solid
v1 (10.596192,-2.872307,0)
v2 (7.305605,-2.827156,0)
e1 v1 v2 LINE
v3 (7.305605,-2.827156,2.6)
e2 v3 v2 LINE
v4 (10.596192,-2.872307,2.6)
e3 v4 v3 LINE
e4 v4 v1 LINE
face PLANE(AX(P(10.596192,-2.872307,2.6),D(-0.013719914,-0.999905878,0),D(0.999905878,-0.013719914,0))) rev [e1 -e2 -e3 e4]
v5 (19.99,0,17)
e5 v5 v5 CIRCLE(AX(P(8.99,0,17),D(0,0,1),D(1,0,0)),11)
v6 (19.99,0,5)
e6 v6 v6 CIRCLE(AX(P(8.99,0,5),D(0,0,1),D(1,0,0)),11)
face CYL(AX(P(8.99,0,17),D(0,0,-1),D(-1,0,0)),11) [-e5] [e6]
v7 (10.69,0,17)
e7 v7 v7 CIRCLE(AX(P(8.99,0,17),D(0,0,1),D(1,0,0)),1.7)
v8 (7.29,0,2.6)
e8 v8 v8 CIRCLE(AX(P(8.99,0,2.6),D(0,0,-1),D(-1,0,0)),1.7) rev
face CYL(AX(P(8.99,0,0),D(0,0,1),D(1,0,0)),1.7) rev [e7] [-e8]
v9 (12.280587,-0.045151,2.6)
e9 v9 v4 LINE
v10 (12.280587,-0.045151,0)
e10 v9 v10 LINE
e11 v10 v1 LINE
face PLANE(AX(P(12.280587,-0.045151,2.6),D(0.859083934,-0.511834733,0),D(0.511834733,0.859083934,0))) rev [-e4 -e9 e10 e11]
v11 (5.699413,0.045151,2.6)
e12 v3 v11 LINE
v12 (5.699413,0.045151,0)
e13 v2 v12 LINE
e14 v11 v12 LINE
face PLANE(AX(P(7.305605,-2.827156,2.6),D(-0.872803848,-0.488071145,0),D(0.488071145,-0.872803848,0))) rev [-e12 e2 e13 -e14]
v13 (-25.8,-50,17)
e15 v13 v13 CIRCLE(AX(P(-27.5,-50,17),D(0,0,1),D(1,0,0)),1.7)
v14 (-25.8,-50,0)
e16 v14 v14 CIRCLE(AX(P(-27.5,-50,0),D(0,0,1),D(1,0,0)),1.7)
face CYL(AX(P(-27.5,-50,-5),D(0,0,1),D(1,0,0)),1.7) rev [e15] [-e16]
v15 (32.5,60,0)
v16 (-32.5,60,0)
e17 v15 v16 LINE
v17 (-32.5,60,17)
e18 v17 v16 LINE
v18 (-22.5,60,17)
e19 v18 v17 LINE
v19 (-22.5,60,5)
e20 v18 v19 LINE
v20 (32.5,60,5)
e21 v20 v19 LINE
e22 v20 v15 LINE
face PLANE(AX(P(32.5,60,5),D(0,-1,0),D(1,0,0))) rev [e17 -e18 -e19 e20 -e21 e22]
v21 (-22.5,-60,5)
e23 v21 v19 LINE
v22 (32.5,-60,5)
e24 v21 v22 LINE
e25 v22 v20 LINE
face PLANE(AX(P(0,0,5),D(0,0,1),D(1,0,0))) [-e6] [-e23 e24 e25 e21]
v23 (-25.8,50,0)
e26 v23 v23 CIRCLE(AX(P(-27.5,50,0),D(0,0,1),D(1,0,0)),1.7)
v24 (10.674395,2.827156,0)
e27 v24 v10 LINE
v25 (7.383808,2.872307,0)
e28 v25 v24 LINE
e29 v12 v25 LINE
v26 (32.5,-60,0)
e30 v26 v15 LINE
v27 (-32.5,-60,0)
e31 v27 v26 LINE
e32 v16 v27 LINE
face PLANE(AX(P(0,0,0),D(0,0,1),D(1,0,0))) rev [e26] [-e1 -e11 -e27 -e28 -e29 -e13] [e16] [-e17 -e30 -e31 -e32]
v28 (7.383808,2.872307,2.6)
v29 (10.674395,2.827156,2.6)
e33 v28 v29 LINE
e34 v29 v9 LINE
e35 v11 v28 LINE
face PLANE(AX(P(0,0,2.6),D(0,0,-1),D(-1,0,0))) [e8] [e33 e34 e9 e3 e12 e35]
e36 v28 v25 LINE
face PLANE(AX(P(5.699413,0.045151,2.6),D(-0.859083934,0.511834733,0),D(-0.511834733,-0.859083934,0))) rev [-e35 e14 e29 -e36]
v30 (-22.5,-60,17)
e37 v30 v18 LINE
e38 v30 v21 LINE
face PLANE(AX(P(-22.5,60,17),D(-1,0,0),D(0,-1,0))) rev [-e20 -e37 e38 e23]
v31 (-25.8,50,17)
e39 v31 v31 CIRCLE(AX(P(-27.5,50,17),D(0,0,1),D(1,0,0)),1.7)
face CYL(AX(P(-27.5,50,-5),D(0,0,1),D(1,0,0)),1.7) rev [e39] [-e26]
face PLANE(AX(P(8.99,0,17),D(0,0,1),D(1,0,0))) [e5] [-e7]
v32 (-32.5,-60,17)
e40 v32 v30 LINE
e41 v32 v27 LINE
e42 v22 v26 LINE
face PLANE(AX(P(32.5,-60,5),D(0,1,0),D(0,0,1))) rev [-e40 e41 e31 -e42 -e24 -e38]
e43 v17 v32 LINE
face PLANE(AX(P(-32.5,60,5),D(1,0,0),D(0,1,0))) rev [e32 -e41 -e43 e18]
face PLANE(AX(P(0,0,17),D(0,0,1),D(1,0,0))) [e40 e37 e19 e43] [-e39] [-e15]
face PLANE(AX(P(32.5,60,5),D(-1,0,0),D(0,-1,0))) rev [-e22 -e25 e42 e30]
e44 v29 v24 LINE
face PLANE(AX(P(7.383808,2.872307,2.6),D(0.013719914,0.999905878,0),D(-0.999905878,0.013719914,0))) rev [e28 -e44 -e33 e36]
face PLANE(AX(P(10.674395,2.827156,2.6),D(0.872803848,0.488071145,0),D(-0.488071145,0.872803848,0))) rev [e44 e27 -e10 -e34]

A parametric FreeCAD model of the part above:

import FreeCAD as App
import Part
import Sketcher
from FreeCAD import Vector
Q = App.Units.Quantity

doc = App.newDocument("Part")
body = doc.addObject("PartDesign::Body", "Body")

sketch1 = doc.addObject("Sketcher::SketchObject", "Sketch")
body.addObject(sketch1)
sketch1.AttachmentSupport = (doc.XY_Plane, [""])
sketch1.MapMode = "FlatFace"
sketch1.addGeometry(Part.LineSegment(Vector(-32, -60, 0), Vector(32, -60, 0)), False)
sketch1.addGeometry(Part.LineSegment(Vector(32, -60, 0), Vector(32, 60, 0)), False)
sketch1.addGeometry(Part.LineSegment(Vector(32, 60, 0), Vector(-32, 60, 0)), False)
sketch1.addGeometry(Part.LineSegment(Vector(-32, 60, 0), Vector(-32, -60, 0)), False)
sketch1.addConstraint(Sketcher.Constraint("Coincident", 0, 2, 1, 1))
sketch1.addConstraint(Sketcher.Constraint("Coincident", 1, 2, 2, 1))
sketch1.addConstraint(Sketcher.Constraint("Coincident", 2, 2, 3, 1))
sketch1.addConstraint(Sketcher.Constraint("Coincident", 3, 2, 0, 1))
sketch1.addConstraint(Sketcher.Constraint("Horizontal", 0))
sketch1.addConstraint(Sketcher.Constraint("Vertical", 1))
sketch1.addConstraint(Sketcher.Constraint("Horizontal", 2))
sketch1.addConstraint(Sketcher.Constraint("Vertical", 3))
sketch1.addConstraint(Sketcher.Constraint("Symmetric", 0, 2, 2, 2, -1, 1))
sketch1.addConstraint(Sketcher.Constraint("DistanceX", 0, 1, 0, 2, Q("65 mm")))
sketch1.addConstraint(Sketcher.Constraint("DistanceY", 1, 1, 1, 2, Q("120 mm")))
pad1 = doc.addObject("PartDesign::Pad", "Pad")
body.addObject(pad1)
pad1.Profile = sketch1
pad1.Length = 5

sketch2 = doc.addObject("Sketcher::SketchObject", "Sketch001")
body.addObject(sketch2)
sketch2.AttachmentSupport = (doc.XY_Plane, [""])
sketch2.MapMode = "FlatFace"
sketch2.AttachmentOffset = App.Placement(Vector(0, 0, 5), App.Rotation())
sketch2.addGeometry(Part.LineSegment(Vector(-32, 60, 0), Vector(-32, -60, 0)), False)
sketch2.addGeometry(Part.LineSegment(Vector(-32, -60, 0), Vector(-22, -60, 0)), False)
sketch2.addGeometry(Part.LineSegment(Vector(-22, -60, 0), Vector(-22, 60, 0)), False)
sketch2.addGeometry(Part.LineSegment(Vector(-22, 60, 0), Vector(-32, 60, 0)), False)
sketch2.addConstraint(Sketcher.Constraint("Coincident", 0, 2, 1, 1))
sketch2.addConstraint(Sketcher.Constraint("Coincident", 1, 2, 2, 1))
sketch2.addConstraint(Sketcher.Constraint("Coincident", 2, 2, 3, 1))
sketch2.addConstraint(Sketcher.Constraint("Coincident", 3, 2, 0, 1))
sketch2.addConstraint(Sketcher.Constraint("Vertical", 0))
sketch2.addConstraint(Sketcher.Constraint("Horizontal", 1))
sketch2.addConstraint(Sketcher.Constraint("Vertical", 2))
sketch2.addConstraint(Sketcher.Constraint("Horizontal", 3))
sketch2.addConstraint(Sketcher.Constraint("DistanceX", 1, 1, 1, 2, Q("10 mm")))
sketch2.addConstraint(Sketcher.Constraint("DistanceY", 0, 2, 0, 1, Q("120 mm")))
sketch2.addConstraint(Sketcher.Constraint("DistanceY", 0, 2, -1, 1, Q("60 mm")))
sketch2.addConstraint(Sketcher.Constraint("DistanceX", 0, 2, -1, 1, Q("32.5 mm")))
pad2 = doc.addObject("PartDesign::Pad", "Pad001")
body.addObject(pad2)
pad2.Profile = sketch2
pad2.Length = 12

sketch3 = doc.addObject("Sketcher::SketchObject", "Sketch002")
body.addObject(sketch3)
sketch3.AttachmentSupport = (doc.XY_Plane, [""])
sketch3.MapMode = "FlatFace"
sketch3.AttachmentOffset = App.Placement(Vector(0, 0, 5), App.Rotation())
sketch3.addGeometry(Part.Circle(Vector(9, 0, 0), Vector(0, 0, 1), 11), False)
sketch3.addConstraint(Sketcher.Constraint("PointOnObject", 0, 3, -1))
sketch3.addConstraint(Sketcher.Constraint("Diameter", 0, Q("22 mm")))
sketch3.addConstraint(Sketcher.Constraint("DistanceX", -1, 1, 0, 3, Q("8.99 mm")))
pad3 = doc.addObject("PartDesign::Pad", "Pad002")
body.addObject(pad3)
pad3.Profile = sketch3
pad3.Length = 12

sketch4 = doc.addObject("Sketcher::SketchObject", "Sketch003")
body.addObject(sketch4)
sketch4.AttachmentSupport = (doc.XY_Plane, [""])
sketch4.MapMode = "FlatFace"
sketch4.AttachmentOffset = App.Placement(Vector(0, 0, 17), App.Rotation())
sketch4.addGeometry(Part.Circle(Vector(-27.5, 50, 0), Vector(0, 0, 1), 1.7), False)
sketch4.addGeometry(Part.Circle(Vector(-27.5, -50, 0), Vector(0, 0, 1), 1.7), False)
sketch4.addConstraint(Sketcher.Constraint("Equal", 0, 1))
sketch4.addConstraint(Sketcher.Constraint("Symmetric", 0, 3, 1, 3, -1))
sketch4.addConstraint(Sketcher.Constraint("Diameter", 0, Q("3.4 mm")))
sketch4.addConstraint(Sketcher.Constraint("DistanceY", -1, 1, 0, 3, Q("50 mm")))
sketch4.addConstraint(Sketcher.Constraint("DistanceX", 0, 3, -1, 1, Q("27.5 mm")))
pocket1 = doc.addObject("PartDesign::Pocket", "Pocket")
body.addObject(pocket1)
pocket1.Profile = sketch4
pocket1.Length = 22

sketch5 = doc.addObject("Sketcher::SketchObject", "Sketch004")
body.addObject(sketch5)
sketch5.AttachmentSupport = (doc.XY_Plane, [""])
sketch5.MapMode = "FlatFace"
sketch5.AttachmentOffset = App.Placement(Vector(0, 0, 17), App.Rotation())
sketch5.addGeometry(Part.Circle(Vector(9, 0, 0), Vector(0, 0, 1), 1.7), False)
sketch5.addConstraint(Sketcher.Constraint("PointOnObject", 0, 3, -1))
sketch5.addConstraint(Sketcher.Constraint("Diameter", 0, Q("3.4 mm")))
sketch5.addConstraint(Sketcher.Constraint("DistanceX", -1, 1, 0, 3, Q("8.99 mm")))
pocket2 = doc.addObject("PartDesign::Pocket", "Pocket001")
body.addObject(pocket2)
pocket2.Profile = sketch5
pocket2.Length = 17

sketch6 = doc.addObject("Sketcher::SketchObject", "Sketch005")
body.addObject(sketch6)
sketch6.AttachmentSupport = (doc.XY_Plane, [""])
sketch6.MapMode = "FlatFace"
sketch6.addGeometry(Part.LineSegment(Vector(7.4, 2.9, 0), Vector(10.7, 2.8, 0)), False)
sketch6.addGeometry(Part.LineSegment(Vector(10.7, 2.8, 0), Vector(12.3, 0, 0)), False)
sketch6.addGeometry(Part.LineSegment(Vector(12.3, 0, 0), Vector(10.6, -2.9, 0)), False)
sketch6.addGeometry(Part.LineSegment(Vector(10.6, -2.9, 0), Vector(7.3, -2.8, 0)), False)
sketch6.addGeometry(Part.LineSegment(Vector(7.3, -2.8, 0), Vector(5.7, 0, 0)), False)
sketch6.addGeometry(Part.LineSegment(Vector(5.7, 0, 0), Vector(7.4, 2.9, 0)), False)
sketch6.addConstraint(Sketcher.Constraint("Coincident", 0, 2, 1, 1))
sketch6.addConstraint(Sketcher.Constraint("Coincident", 1, 2, 2, 1))
sketch6.addConstraint(Sketcher.Constraint("Coincident", 2, 2, 3, 1))
sketch6.addConstraint(Sketcher.Constraint("Coincident", 3, 2, 4, 1))
sketch6.addConstraint(Sketcher.Constraint("Coincident", 4, 2, 5, 1))
sketch6.addConstraint(Sketcher.Constraint("Coincident", 5, 2, 0, 1))
sketch6.addConstraint(Sketcher.Constraint("Parallel", 0, 3))
sketch6.addConstraint(Sketcher.Constraint("Parallel", 1, 4))
sketch6.addConstraint(Sketcher.Constraint("Parallel", 2, 5))
sketch6.addConstraint(Sketcher.Constraint("Equal", 0, 1))
sketch6.addConstraint(Sketcher.Constraint("Equal", 1, 2))
sketch6.addConstraint(Sketcher.Constraint("Equal", 2, 3))
sketch6.addConstraint(Sketcher.Constraint("DistanceY", 1, 2, 4, 2, Q("0.090302 mm")))
sketch6.addConstraint(Sketcher.Constraint("DistanceY", 1, 2, -1, 1, Q("0.045151 mm")))
sketch6.addConstraint(Sketcher.Constraint("DistanceX", -1, 1, 2, 2, Q("10.596192 mm")))
sketch6.addConstraint(Sketcher.Constraint("DistanceX", -1, 1, 5, 2, Q("7.383808 mm")))
sketch6.addConstraint(Sketcher.Constraint("DistanceX", 0, 2, 1, 2, Q("1.606192 mm")))
sketch6.addConstraint(Sketcher.Constraint("DistanceY", 2, 2, 3, 2, Q("0.045151 mm")))
pocket3 = doc.addObject("PartDesign::Pocket", "Pocket002")
body.addObject(pocket3)
pocket3.Profile = sketch6
pocket3.Length = 2.6
pocket3.Reversed = True

doc.recompute()
